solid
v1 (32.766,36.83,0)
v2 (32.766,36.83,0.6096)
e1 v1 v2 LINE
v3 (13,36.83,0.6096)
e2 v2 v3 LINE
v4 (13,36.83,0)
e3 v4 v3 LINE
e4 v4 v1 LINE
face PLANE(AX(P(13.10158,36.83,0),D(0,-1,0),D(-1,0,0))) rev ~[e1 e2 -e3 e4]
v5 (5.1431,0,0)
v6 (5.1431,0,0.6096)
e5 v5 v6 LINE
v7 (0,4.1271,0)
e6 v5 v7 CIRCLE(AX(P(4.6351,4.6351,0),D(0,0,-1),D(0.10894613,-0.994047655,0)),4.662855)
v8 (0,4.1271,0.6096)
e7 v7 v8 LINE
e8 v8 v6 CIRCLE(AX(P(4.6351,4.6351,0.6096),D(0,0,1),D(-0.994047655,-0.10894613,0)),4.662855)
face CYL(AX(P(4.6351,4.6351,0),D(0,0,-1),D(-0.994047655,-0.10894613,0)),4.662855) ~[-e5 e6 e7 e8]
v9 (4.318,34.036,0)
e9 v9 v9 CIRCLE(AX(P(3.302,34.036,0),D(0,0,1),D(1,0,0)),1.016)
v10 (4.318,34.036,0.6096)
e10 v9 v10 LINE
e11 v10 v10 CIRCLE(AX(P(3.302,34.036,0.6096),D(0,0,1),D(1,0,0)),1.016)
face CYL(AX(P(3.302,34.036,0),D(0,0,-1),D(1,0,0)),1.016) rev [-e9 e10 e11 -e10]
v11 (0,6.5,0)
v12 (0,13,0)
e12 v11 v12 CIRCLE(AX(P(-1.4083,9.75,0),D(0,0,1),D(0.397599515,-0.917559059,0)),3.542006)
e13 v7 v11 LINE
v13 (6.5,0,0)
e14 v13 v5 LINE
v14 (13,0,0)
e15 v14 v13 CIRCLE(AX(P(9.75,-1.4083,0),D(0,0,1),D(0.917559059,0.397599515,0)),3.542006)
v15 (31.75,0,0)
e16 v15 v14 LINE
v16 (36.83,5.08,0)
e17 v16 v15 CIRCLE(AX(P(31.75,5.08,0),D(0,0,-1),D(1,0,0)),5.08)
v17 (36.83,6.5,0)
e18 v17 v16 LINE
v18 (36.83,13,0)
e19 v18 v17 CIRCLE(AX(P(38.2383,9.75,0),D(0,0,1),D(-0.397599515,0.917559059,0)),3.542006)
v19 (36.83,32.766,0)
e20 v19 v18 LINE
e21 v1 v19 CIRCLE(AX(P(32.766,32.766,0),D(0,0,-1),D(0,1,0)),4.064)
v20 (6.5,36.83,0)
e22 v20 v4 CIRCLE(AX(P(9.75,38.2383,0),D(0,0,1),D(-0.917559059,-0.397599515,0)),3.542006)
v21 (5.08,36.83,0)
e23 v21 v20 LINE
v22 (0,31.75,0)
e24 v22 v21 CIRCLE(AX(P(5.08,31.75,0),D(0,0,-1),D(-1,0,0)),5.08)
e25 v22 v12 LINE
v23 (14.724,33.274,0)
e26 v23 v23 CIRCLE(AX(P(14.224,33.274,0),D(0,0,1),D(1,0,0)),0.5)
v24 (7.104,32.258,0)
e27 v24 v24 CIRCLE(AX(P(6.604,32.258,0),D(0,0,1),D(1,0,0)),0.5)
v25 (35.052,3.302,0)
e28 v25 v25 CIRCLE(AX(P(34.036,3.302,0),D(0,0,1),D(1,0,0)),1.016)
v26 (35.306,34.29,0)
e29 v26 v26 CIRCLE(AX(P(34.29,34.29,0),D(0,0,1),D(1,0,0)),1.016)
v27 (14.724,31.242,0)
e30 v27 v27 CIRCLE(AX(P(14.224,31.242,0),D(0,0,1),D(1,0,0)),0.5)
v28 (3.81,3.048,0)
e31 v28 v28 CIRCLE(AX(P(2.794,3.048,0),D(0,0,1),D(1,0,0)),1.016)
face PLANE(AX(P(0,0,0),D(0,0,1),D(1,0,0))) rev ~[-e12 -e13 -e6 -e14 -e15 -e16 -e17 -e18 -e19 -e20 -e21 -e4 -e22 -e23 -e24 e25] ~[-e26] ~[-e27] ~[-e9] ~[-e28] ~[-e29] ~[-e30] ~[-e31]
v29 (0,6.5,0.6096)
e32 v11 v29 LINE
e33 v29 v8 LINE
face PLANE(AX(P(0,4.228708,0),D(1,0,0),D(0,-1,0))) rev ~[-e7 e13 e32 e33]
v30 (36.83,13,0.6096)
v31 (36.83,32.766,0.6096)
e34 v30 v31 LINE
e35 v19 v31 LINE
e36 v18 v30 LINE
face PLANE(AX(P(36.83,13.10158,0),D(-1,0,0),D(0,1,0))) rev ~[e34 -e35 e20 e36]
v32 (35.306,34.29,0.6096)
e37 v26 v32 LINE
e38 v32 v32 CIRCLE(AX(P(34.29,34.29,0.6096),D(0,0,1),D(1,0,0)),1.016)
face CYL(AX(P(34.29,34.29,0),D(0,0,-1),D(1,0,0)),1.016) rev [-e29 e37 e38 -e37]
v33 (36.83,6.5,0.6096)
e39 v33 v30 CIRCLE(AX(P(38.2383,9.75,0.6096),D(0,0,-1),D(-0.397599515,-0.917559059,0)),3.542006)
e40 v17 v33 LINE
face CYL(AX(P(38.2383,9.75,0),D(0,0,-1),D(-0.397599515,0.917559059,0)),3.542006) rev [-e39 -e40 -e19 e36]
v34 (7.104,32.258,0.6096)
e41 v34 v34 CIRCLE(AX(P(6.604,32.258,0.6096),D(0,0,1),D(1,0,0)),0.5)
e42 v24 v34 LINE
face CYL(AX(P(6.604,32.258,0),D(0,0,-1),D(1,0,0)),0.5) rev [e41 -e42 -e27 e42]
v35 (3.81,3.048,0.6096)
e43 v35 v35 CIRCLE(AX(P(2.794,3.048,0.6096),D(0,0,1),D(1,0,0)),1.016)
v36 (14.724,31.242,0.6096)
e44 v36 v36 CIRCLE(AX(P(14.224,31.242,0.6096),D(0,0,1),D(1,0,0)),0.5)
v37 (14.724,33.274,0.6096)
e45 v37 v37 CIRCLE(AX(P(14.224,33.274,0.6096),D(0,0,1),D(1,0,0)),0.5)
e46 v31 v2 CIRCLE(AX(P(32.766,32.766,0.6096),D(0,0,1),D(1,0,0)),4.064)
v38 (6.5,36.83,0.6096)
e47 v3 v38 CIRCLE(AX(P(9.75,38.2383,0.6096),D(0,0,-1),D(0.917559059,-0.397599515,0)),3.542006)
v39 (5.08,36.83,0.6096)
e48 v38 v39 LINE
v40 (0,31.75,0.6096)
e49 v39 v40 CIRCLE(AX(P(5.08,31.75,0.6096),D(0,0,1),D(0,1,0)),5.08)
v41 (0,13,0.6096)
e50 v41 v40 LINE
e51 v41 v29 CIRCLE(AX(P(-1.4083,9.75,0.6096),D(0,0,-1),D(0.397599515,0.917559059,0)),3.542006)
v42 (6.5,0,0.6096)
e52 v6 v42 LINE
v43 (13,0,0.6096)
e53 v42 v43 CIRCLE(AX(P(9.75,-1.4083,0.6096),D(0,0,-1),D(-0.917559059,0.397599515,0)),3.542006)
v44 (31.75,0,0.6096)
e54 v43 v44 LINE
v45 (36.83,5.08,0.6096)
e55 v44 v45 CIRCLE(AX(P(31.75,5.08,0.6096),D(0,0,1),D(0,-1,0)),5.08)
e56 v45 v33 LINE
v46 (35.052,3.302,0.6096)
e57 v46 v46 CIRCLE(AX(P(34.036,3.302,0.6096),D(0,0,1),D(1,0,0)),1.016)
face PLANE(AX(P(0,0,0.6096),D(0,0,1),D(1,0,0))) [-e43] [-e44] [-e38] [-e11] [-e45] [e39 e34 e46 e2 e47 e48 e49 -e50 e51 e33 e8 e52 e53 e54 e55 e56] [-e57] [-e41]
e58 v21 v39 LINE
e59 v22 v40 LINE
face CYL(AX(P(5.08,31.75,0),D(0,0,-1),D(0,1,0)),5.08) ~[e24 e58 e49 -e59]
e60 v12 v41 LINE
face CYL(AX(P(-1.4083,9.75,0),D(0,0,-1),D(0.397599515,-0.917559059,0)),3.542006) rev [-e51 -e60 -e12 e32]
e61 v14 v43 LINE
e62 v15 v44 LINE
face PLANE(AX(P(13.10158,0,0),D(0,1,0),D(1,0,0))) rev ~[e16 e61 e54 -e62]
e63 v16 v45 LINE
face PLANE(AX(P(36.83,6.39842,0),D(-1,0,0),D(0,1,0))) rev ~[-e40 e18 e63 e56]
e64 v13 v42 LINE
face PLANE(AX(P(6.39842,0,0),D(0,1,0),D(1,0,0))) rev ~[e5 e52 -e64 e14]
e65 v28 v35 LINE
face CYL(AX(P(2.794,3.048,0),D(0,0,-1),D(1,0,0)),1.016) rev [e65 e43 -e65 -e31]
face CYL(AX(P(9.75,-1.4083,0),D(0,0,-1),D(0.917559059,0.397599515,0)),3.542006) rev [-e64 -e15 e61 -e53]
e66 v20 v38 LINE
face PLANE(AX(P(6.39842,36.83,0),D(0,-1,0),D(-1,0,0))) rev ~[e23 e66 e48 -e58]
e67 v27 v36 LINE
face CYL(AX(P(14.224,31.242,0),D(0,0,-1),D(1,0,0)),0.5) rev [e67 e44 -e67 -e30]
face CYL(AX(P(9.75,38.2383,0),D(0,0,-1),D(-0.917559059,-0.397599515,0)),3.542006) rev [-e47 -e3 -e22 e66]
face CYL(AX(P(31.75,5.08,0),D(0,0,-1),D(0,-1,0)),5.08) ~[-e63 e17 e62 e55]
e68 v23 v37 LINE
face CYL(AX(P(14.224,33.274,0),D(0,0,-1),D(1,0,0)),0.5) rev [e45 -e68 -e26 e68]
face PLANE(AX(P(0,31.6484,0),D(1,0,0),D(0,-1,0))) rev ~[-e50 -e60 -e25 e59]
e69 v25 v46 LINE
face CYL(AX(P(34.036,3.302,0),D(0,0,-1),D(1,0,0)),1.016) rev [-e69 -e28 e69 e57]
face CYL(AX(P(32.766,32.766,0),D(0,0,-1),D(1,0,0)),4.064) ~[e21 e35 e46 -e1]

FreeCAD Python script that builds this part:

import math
import FreeCAD as App
import Part
import Sketcher
from FreeCAD import Vector
Q = App.Units.Quantity

doc = App.newDocument("Part")
body = doc.addObject("PartDesign::Body", "Body")

# Sketch on XY plane
sketch1 = doc.addObject("Sketcher::SketchObject", "Sketch")
body.addObject(sketch1)
sketch1.AttachmentSupport = (doc.XY_Plane, [""])
sketch1.MapMode = "FlatFace"
sketch1.addGeometry([
    Part.ArcOfCircle(Part.Circle(Vector(-1.4, 9.8, 0), Vector(0, 0, 1), 3.5), math.radians(-67), math.radians(67)),  # 0
    Part.LineSegment(Vector(0, 6.5, 0), Vector(0, 4.1, 0)),  # 1
    Part.ArcOfCircle(Part.Circle(Vector(4.6, 4.6, 0), Vector(0, 0, 1), 4.7), math.radians(-174), math.radians(-84)),  # 2
    Part.LineSegment(Vector(5.1, 0, 0), Vector(6.5, 0, 0)),  # 3
    Part.ArcOfCircle(Part.Circle(Vector(9.8, -1.4, 0), Vector(0, 0, 1), 3.5), math.radians(23), math.radians(157)),  # 4
    Part.LineSegment(Vector(13, 0, 0), Vector(31.8, 0, 0)),  # 5
    Part.ArcOfCircle(Part.Circle(Vector(31.8, 5.1, 0), Vector(0, 0, 1), 5.1), math.radians(-90), math.radians(0)),  # 6
    Part.LineSegment(Vector(36.8, 5.1, 0), Vector(36.8, 6.5, 0)),  # 7
    Part.ArcOfCircle(Part.Circle(Vector(38.2, 9.8, 0), Vector(0, 0, 1), 3.5), math.radians(113), math.radians(247)),  # 8
    Part.LineSegment(Vector(36.8, 13, 0), Vector(36.8, 32.8, 0)),  # 9
    Part.ArcOfCircle(Part.Circle(Vector(32.8, 32.8, 0), Vector(0, 0, 1), 4.1), math.radians(0), math.radians(90)),  # 10
    Part.LineSegment(Vector(32.8, 36.8, 0), Vector(13, 36.8, 0)),  # 11
    Part.ArcOfCircle(Part.Circle(Vector(9.8, 38.2, 0), Vector(0, 0, 1), 3.5), math.radians(-157), math.radians(-23)),  # 12
    Part.LineSegment(Vector(6.5, 36.8, 0), Vector(5.1, 36.8, 0)),  # 13
    Part.ArcOfCircle(Part.Circle(Vector(5.1, 31.8, 0), Vector(0, 0, 1), 5.1), math.radians(90), math.radians(180)),  # 14
    Part.LineSegment(Vector(0, 31.8, 0), Vector(0, 13, 0)),  # 15
    Part.Circle(Vector(2.8, 3, 0), Vector(0, 0, 1), 1),  # 16
    Part.Circle(Vector(34, 3.3, 0), Vector(0, 0, 1), 1),  # 17
    Part.Circle(Vector(6.6, 32.3, 0), Vector(0, 0, 1), 0.5),  # 18
    Part.Circle(Vector(3.3, 34, 0), Vector(0, 0, 1), 1),  # 19
    Part.Circle(Vector(14.2, 31.2, 0), Vector(0, 0, 1), 0.5),  # 20
    Part.Circle(Vector(14.2, 33.3, 0), Vector(0, 0, 1), 0.5),  # 21
    Part.Circle(Vector(34.3, 34.3, 0), Vector(0, 0, 1), 1),  # 22
], False)
sketch1.addConstraint([
    Sketcher.Constraint("Coincident", 0, 1, 1, 1),
    Sketcher.Constraint("Coincident", 1, 2, 2, 1),
    Sketcher.Constraint("Coincident", 2, 2, 3, 1),
    Sketcher.Constraint("Coincident", 3, 2, 4, 2),
    Sketcher.Constraint("Coincident", 4, 1, 5, 1),
    Sketcher.Constraint("Tangent", 5, 2, 6, 1),
    Sketcher.Constraint("Tangent", 6, 2, 7, 1),
    Sketcher.Constraint("Coincident", 7, 2, 8, 2),
    Sketcher.Constraint("Coincident", 8, 1, 9, 1),
    Sketcher.Constraint("Tangent", 9, 2, 10, 1),
    Sketcher.Constraint("Tangent", 10, 2, 11, 1),
    Sketcher.Constraint("Coincident", 11, 2, 12, 2),
    Sketcher.Constraint("Coincident", 12, 1, 13, 1),
    Sketcher.Constraint("Tangent", 13, 2, 14, 1),
    Sketcher.Constraint("Tangent", 14, 2, 15, 1),
    Sketcher.Constraint("Coincident", 15, 2, 0, 2),
    Sketcher.Constraint("Vertical", 1),
    Sketcher.Constraint("Horizontal", 3),
    Sketcher.Constraint("Horizontal", 5),
    Sketcher.Constraint("Vertical", 7),
    Sketcher.Constraint("Vertical", 9),
    Sketcher.Constraint("Horizontal", 11),
    Sketcher.Constraint("Horizontal", 13),
    Sketcher.Constraint("Vertical", 15),
    Sketcher.Constraint("Equal", 0, 4),
    Sketcher.Constraint("Equal", 4, 8),
    Sketcher.Constraint("Equal", 8, 12),
    Sketcher.Constraint("Equal", 6, 14),
    Sketcher.Constraint("Equal", 16, 17),
    Sketcher.Constraint("Equal", 17, 19),
    Sketcher.Constraint("Equal", 18, 20),
    Sketcher.Constraint("Equal", 20, 21),
    Sketcher.Constraint("Equal", 19, 22),
    Sketcher.Constraint("PointOnObject", 0, 1, -2),
    Sketcher.Constraint("PointOnObject", 2, 2, -1),
    Sketcher.Constraint("PointOnObject", 4, 1, -1),
    Sketcher.Constraint("PointOnObject", 14, 2, -2),
    Sketcher.Constraint("Horizontal", 0, 3, 8, 3),
    Sketcher.Constraint("Horizontal", 0, 1, 7, 2),
    Sketcher.Constraint("Horizontal", 11, 2, 12, 1),
    Sketcher.Constraint("Horizontal", 8, 1, 15, 2),
    Sketcher.Constraint("Vertical", 4, 3, 12, 3),
    Sketcher.Constraint("Vertical", 20, 3, 21, 3),
    Sketcher.Constraint("Vertical", 4, 1, 11, 2),
    Sketcher.Constraint("Equal", 13, 7),
    Sketcher.Constraint("Equal", 11, 9),
    Sketcher.Constraint("Radius", 6, Q("0.2 in")),
    Sketcher.Constraint("Diameter", 16, Q("0.08 in")),
    Sketcher.Constraint("Radius", 10, Q("0.16 in")),
    Sketcher.Constraint("DistanceX", 18, 3, 20, 3, Q("0.3 in")),
    Sketcher.Constraint("DistanceX", 22, 3, 9, 2, Q("0.1 in")),
    Sketcher.Constraint("DistanceY", 22, 3, 10, 2, Q("0.1 in")),
    Sketcher.Constraint("Diameter", 18, Q("1 mm")),
    Sketcher.Constraint("DistanceX", -1, 1, 6, 3, Q("1.25 in")),
    Sketcher.Constraint("DistanceY", -1, 1, 10, 3, Q("1.29 in")),
    Sketcher.Constraint("DistanceX", -1, 1, 16, 3, Q("0.11 in")),
    Sketcher.Constraint("DistanceY", -1, 1, 16, 3, Q("0.12 in")),
    Sketcher.Constraint("DistanceX", -1, 1, 17, 3, Q("1.34 in")),
    Sketcher.Constraint("DistanceY", -1, 1, 17, 3, Q("0.13 in")),
    Sketcher.Constraint("DistanceX", -1, 1, 18, 3, Q("0.26 in")),
    Sketcher.Constraint("DistanceY", -1, 1, 18, 3, Q("1.27 in")),
    Sketcher.Constraint("DistanceX", -1, 1, 19, 3, Q("0.13 in")),
    Sketcher.Constraint("DistanceY", -1, 1, 19, 3, Q("1.34 in")),
    Sketcher.Constraint("DistanceY", -1, 1, 20, 3, Q("1.23 in")),
    Sketcher.Constraint("DistanceY", -1, 1, 21, 3, Q("1.31 in")),
    Sketcher.Constraint("Radius", 0, Q("3.542 mm")),
    Sketcher.Constraint("Radius", 2, Q("4.6629 mm")),
    Sketcher.Constraint("DistanceY", 1, 2, 2, 3, Q("0.02 in")),
    Sketcher.Constraint("DistanceX", 2, 3, 2, 2, Q("0.02 in")),
    Sketcher.Constraint("DistanceX", 5, 1, 5, 2, Q("0.7382 in")),
    Sketcher.Constraint("DistanceX", 13, 2, 13, 1, Q("0.0559 in")),
])
pad1 = doc.addObject("PartDesign::Pad", "Pad")
body.addObject(pad1)
pad1.Profile = sketch1
pad1.Length = Q("0.024 in")

doc.recompute()
